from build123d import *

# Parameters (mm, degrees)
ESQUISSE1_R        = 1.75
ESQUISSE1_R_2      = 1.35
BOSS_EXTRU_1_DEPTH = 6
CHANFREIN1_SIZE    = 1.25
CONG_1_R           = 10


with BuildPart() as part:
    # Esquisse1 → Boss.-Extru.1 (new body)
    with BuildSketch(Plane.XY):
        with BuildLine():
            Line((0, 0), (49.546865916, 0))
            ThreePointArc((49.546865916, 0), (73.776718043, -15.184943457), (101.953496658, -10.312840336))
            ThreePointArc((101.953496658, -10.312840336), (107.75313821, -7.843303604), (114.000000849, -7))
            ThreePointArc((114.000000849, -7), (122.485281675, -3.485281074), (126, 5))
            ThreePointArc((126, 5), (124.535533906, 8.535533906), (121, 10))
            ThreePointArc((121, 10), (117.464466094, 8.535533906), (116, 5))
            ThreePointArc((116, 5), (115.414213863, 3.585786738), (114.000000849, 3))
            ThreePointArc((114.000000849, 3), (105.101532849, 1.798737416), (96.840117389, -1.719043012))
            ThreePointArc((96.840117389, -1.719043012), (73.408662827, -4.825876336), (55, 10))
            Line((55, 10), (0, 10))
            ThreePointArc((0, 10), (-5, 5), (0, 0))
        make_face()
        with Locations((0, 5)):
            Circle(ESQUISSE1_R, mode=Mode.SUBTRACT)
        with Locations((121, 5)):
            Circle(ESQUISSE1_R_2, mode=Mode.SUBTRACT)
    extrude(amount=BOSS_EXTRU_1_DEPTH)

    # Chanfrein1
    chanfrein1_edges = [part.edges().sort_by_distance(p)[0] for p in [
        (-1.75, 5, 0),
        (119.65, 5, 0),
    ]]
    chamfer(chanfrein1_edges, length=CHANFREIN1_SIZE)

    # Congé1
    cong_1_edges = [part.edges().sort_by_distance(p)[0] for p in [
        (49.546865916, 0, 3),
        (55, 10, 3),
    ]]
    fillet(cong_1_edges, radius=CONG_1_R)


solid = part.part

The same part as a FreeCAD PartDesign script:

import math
import FreeCAD as App
import Part
import Sketcher
Q = App.Units.Quantity


def edges_at(feature, points):
    """Names of the edges that pass closest to the given points."""
    edges = feature.Shape.Edges
    near = lambda p: min(range(len(edges)), key=lambda i: edges[i].distToShape(Part.Vertex(*p))[0])
    return sorted({f"Edge{near(p) + 1}" for p in points})

doc = App.newDocument("Part")
params = doc.addObject("Spreadsheet::Sheet", "Params")
for row, (alias, value) in enumerate([
    ("sketch1_radius", "40 mm"),
    ("sketch1_radius2", "12 mm"),
    ("sketch1_radius3", "5 mm"),
    ("sketch1_radius4", "30 mm"),
    ("sketch1_radius5", "5 mm"),
    ("pad1_length", "6 mm"),
    ("chamfer_size", "1.25 mm"),
    ("fillet_radius", "10 mm"),
], start=1):
    params.set(f"A{row}", alias)
    params.set(f"B{row}", "=" + value)
    params.setAlias(f"B{row}", alias)

body = doc.addObject("PartDesign::Body", "Body")

# Sketch on XY plane
sketch1 = doc.addObject("Sketcher::SketchObject", "Sketch")
body.addObject(sketch1)
sketch1.AttachmentSupport = (doc.XY_Plane, [""])
sketch1.MapMode = "FlatFace"
sketch1.addGeometry([
    Part.LineSegment(App.Vector(0, 0, 0), App.Vector(49.546866, 0, 0)),  # 0
    Part.ArcOfCircle(Part.Circle(App.Vector(81.5, 24.062361, 0), App.Vector(0, 0, 1), 40), math.radians(-143.018363), math.radians(-59.247044)),  # 1
    Part.ArcOfCircle(Part.Circle(App.Vector(114.000003, -30.558819, 0), App.Vector(0, 0, 1), 23.558819), math.radians(90.000004), math.radians(120.752956)),  # 2
    Part.ArcOfCircle(Part.Circle(App.Vector(114, 5, 0), App.Vector(0, 0, 1), 12), math.radians(-89.999996), math.radians(0)),  # 3
    Part.ArcOfCircle(Part.Circle(App.Vector(121, 5, 0), App.Vector(0, 0, 1), 5), math.radians(0), math.radians(90)),  # 4
    Part.ArcOfCircle(Part.Circle(App.Vector(121, 5, 0), App.Vector(0, 0, 1), 5), math.radians(90), math.radians(180)),  # 5
    Part.ArcOfCircle(Part.Circle(App.Vector(114, 5, 0), App.Vector(0, 0, 1), 2), math.radians(-89.999976), math.radians(0)),  # 6
    Part.ArcOfCircle(Part.Circle(App.Vector(114.000015, -30.558865, 0), App.Vector(0, 0, 1), 33.558865), math.radians(90.000024), math.radians(120.752944)),  # 7
    Part.ArcOfCircle(Part.Circle(App.Vector(81.5, 24.062361, 0), App.Vector(0, 0, 1), 30), math.radians(-152.047113), math.radians(-59.247056)),  # 8
    Part.LineSegment(App.Vector(55, 10, 0), App.Vector(0, 10, 0)),  # 9
    Part.ArcOfCircle(Part.Circle(App.Vector(0, 5, 0), App.Vector(0, 0, 1), 5), math.radians(90), math.radians(270)),  # 10
    Part.Circle(App.Vector(0, 5, 0), App.Vector(0, 0, 1), 1.75),  # 11
    Part.Circle(App.Vector(121, 5, 0), App.Vector(0, 0, 1), 1.35),  # 12
], False)
sketch1.addConstraint([
    Sketcher.Constraint("Coincident", 0, 2, 1, 1),
    Sketcher.Constraint("Coincident", 1, 2, 2, 2),
    Sketcher.Constraint("Coincident", 2, 1, 3, 1),
    Sketcher.Constraint("Coincident", 3, 2, 4, 1),
    Sketcher.Constraint("Coincident", 4, 2, 5, 1),
    Sketcher.Constraint("Coincident", 5, 2, 6, 2),
    Sketcher.Constraint("Coincident", 6, 1, 7, 1),
    Sketcher.Constraint("Coincident", 7, 2, 8, 2),
    Sketcher.Constraint("Coincident", 8, 1, 9, 1),
    Sketcher.Constraint("Coincident", 9, 2, 10, 1),
    Sketcher.Constraint("Coincident", 10, 2, 0, 1),
    Sketcher.Constraint("Horizontal", 0),
    Sketcher.Constraint("Horizontal", 9),
    Sketcher.Constraint("Coincident", 10, 2, -1, 1),
    Sketcher.Constraint("Coincident", 5, 3, 4, 3),
    Sketcher.Constraint("Coincident", 6, 3, 3, 3),
    Sketcher.Constraint("Coincident", 8, 3, 1, 3),
    Sketcher.Constraint("Coincident", 11, 3, 10, 3),
    Sketcher.Constraint("Coincident", 12, 3, 4, 3),
    Sketcher.Constraint("PointOnObject", 10, 3, -2),
    Sketcher.Constraint("PointOnObject", 9, 2, -2),
    Sketcher.Constraint("Radius", 1, Q("40 mm")),
    Sketcher.Constraint("Radius", 3, Q("12 mm")),
    Sketcher.Constraint("Radius", 4, Q("5 mm")),
    Sketcher.Constraint("Radius", 8, Q("30 mm")),
    Sketcher.Constraint("Radius", 10, Q("5 mm")),
    Sketcher.Constraint("Diameter", 11, Q("3.5 mm")),
    Sketcher.Constraint("Diameter", 12, Q("2.7 mm")),
    Sketcher.Constraint("DistanceX", 9, 2, 9, 1, Q("55 mm")),
    Sketcher.Constraint("DistanceX", -1, 1, 3, 3, Q("114 mm")),
    Sketcher.Constraint("DistanceY", -1, 1, 3, 3, Q("5 mm")),
    Sketcher.Constraint("DistanceY", -1, 1, 4, 3, Q("5 mm")),
    Sketcher.Constraint("DistanceX", -1, 1, 2, 1, Q("114.000001 mm")),
    Sketcher.Constraint("DistanceY", -1, 1, 3, 2, Q("5 mm")),
    Sketcher.Constraint("DistanceX", -1, 1, 4, 2, Q("121 mm")),
    Sketcher.Constraint("DistanceY", -1, 1, 5, 2, Q("5 mm")),
    Sketcher.Constraint("DistanceX", -1, 1, 6, 1, Q("114.000001 mm")),
    Sketcher.Constraint("DistanceX", -1, 1, 1, 3, Q("81.5 mm")),
    Sketcher.Constraint("Radius", 2, Q("23.558819 mm")),
    Sketcher.Constraint("Radius", 7, Q("33.558865 mm")),
    Sketcher.Constraint("DistanceY", 1, 2, -1, 1, Q("10.31284 mm")),
    Sketcher.Constraint("DistanceX", 7, 2, 1, 2, Q("5.113379 mm")),
])
sketch1.setExpression("Constraints[21]", "Params.sketch1_radius")
sketch1.setExpression("Constraints[22]", "Params.sketch1_radius2")
sketch1.setExpression("Constraints[23]", "Params.sketch1_radius3")
sketch1.setExpression("Constraints[24]", "Params.sketch1_radius4")
sketch1.setExpression("Constraints[25]", "Params.sketch1_radius5")
pad1 = doc.addObject("PartDesign::Pad", "Pad")
body.addObject(pad1)
pad1.Profile = sketch1
pad1.setExpression("Length", "Params.pad1_length")
doc.recompute()

chamfer = doc.addObject("PartDesign::Chamfer", "Chamfer")
body.addObject(chamfer)
chamfer.Base = (pad1, edges_at(pad1, [(-1.75, 5, 0), (119.65, 5, 0)]))
chamfer.setExpression("Size", "Params.chamfer_size")
doc.recompute()

fillet = doc.addObject("PartDesign::Fillet", "Fillet")
body.addObject(fillet)
fillet.Base = (chamfer, edges_at(chamfer, [(49.547, 0, 3), (55, 10, 3)]))
fillet.setExpression("Radius", "Params.fillet_radius")

doc.recompute()
